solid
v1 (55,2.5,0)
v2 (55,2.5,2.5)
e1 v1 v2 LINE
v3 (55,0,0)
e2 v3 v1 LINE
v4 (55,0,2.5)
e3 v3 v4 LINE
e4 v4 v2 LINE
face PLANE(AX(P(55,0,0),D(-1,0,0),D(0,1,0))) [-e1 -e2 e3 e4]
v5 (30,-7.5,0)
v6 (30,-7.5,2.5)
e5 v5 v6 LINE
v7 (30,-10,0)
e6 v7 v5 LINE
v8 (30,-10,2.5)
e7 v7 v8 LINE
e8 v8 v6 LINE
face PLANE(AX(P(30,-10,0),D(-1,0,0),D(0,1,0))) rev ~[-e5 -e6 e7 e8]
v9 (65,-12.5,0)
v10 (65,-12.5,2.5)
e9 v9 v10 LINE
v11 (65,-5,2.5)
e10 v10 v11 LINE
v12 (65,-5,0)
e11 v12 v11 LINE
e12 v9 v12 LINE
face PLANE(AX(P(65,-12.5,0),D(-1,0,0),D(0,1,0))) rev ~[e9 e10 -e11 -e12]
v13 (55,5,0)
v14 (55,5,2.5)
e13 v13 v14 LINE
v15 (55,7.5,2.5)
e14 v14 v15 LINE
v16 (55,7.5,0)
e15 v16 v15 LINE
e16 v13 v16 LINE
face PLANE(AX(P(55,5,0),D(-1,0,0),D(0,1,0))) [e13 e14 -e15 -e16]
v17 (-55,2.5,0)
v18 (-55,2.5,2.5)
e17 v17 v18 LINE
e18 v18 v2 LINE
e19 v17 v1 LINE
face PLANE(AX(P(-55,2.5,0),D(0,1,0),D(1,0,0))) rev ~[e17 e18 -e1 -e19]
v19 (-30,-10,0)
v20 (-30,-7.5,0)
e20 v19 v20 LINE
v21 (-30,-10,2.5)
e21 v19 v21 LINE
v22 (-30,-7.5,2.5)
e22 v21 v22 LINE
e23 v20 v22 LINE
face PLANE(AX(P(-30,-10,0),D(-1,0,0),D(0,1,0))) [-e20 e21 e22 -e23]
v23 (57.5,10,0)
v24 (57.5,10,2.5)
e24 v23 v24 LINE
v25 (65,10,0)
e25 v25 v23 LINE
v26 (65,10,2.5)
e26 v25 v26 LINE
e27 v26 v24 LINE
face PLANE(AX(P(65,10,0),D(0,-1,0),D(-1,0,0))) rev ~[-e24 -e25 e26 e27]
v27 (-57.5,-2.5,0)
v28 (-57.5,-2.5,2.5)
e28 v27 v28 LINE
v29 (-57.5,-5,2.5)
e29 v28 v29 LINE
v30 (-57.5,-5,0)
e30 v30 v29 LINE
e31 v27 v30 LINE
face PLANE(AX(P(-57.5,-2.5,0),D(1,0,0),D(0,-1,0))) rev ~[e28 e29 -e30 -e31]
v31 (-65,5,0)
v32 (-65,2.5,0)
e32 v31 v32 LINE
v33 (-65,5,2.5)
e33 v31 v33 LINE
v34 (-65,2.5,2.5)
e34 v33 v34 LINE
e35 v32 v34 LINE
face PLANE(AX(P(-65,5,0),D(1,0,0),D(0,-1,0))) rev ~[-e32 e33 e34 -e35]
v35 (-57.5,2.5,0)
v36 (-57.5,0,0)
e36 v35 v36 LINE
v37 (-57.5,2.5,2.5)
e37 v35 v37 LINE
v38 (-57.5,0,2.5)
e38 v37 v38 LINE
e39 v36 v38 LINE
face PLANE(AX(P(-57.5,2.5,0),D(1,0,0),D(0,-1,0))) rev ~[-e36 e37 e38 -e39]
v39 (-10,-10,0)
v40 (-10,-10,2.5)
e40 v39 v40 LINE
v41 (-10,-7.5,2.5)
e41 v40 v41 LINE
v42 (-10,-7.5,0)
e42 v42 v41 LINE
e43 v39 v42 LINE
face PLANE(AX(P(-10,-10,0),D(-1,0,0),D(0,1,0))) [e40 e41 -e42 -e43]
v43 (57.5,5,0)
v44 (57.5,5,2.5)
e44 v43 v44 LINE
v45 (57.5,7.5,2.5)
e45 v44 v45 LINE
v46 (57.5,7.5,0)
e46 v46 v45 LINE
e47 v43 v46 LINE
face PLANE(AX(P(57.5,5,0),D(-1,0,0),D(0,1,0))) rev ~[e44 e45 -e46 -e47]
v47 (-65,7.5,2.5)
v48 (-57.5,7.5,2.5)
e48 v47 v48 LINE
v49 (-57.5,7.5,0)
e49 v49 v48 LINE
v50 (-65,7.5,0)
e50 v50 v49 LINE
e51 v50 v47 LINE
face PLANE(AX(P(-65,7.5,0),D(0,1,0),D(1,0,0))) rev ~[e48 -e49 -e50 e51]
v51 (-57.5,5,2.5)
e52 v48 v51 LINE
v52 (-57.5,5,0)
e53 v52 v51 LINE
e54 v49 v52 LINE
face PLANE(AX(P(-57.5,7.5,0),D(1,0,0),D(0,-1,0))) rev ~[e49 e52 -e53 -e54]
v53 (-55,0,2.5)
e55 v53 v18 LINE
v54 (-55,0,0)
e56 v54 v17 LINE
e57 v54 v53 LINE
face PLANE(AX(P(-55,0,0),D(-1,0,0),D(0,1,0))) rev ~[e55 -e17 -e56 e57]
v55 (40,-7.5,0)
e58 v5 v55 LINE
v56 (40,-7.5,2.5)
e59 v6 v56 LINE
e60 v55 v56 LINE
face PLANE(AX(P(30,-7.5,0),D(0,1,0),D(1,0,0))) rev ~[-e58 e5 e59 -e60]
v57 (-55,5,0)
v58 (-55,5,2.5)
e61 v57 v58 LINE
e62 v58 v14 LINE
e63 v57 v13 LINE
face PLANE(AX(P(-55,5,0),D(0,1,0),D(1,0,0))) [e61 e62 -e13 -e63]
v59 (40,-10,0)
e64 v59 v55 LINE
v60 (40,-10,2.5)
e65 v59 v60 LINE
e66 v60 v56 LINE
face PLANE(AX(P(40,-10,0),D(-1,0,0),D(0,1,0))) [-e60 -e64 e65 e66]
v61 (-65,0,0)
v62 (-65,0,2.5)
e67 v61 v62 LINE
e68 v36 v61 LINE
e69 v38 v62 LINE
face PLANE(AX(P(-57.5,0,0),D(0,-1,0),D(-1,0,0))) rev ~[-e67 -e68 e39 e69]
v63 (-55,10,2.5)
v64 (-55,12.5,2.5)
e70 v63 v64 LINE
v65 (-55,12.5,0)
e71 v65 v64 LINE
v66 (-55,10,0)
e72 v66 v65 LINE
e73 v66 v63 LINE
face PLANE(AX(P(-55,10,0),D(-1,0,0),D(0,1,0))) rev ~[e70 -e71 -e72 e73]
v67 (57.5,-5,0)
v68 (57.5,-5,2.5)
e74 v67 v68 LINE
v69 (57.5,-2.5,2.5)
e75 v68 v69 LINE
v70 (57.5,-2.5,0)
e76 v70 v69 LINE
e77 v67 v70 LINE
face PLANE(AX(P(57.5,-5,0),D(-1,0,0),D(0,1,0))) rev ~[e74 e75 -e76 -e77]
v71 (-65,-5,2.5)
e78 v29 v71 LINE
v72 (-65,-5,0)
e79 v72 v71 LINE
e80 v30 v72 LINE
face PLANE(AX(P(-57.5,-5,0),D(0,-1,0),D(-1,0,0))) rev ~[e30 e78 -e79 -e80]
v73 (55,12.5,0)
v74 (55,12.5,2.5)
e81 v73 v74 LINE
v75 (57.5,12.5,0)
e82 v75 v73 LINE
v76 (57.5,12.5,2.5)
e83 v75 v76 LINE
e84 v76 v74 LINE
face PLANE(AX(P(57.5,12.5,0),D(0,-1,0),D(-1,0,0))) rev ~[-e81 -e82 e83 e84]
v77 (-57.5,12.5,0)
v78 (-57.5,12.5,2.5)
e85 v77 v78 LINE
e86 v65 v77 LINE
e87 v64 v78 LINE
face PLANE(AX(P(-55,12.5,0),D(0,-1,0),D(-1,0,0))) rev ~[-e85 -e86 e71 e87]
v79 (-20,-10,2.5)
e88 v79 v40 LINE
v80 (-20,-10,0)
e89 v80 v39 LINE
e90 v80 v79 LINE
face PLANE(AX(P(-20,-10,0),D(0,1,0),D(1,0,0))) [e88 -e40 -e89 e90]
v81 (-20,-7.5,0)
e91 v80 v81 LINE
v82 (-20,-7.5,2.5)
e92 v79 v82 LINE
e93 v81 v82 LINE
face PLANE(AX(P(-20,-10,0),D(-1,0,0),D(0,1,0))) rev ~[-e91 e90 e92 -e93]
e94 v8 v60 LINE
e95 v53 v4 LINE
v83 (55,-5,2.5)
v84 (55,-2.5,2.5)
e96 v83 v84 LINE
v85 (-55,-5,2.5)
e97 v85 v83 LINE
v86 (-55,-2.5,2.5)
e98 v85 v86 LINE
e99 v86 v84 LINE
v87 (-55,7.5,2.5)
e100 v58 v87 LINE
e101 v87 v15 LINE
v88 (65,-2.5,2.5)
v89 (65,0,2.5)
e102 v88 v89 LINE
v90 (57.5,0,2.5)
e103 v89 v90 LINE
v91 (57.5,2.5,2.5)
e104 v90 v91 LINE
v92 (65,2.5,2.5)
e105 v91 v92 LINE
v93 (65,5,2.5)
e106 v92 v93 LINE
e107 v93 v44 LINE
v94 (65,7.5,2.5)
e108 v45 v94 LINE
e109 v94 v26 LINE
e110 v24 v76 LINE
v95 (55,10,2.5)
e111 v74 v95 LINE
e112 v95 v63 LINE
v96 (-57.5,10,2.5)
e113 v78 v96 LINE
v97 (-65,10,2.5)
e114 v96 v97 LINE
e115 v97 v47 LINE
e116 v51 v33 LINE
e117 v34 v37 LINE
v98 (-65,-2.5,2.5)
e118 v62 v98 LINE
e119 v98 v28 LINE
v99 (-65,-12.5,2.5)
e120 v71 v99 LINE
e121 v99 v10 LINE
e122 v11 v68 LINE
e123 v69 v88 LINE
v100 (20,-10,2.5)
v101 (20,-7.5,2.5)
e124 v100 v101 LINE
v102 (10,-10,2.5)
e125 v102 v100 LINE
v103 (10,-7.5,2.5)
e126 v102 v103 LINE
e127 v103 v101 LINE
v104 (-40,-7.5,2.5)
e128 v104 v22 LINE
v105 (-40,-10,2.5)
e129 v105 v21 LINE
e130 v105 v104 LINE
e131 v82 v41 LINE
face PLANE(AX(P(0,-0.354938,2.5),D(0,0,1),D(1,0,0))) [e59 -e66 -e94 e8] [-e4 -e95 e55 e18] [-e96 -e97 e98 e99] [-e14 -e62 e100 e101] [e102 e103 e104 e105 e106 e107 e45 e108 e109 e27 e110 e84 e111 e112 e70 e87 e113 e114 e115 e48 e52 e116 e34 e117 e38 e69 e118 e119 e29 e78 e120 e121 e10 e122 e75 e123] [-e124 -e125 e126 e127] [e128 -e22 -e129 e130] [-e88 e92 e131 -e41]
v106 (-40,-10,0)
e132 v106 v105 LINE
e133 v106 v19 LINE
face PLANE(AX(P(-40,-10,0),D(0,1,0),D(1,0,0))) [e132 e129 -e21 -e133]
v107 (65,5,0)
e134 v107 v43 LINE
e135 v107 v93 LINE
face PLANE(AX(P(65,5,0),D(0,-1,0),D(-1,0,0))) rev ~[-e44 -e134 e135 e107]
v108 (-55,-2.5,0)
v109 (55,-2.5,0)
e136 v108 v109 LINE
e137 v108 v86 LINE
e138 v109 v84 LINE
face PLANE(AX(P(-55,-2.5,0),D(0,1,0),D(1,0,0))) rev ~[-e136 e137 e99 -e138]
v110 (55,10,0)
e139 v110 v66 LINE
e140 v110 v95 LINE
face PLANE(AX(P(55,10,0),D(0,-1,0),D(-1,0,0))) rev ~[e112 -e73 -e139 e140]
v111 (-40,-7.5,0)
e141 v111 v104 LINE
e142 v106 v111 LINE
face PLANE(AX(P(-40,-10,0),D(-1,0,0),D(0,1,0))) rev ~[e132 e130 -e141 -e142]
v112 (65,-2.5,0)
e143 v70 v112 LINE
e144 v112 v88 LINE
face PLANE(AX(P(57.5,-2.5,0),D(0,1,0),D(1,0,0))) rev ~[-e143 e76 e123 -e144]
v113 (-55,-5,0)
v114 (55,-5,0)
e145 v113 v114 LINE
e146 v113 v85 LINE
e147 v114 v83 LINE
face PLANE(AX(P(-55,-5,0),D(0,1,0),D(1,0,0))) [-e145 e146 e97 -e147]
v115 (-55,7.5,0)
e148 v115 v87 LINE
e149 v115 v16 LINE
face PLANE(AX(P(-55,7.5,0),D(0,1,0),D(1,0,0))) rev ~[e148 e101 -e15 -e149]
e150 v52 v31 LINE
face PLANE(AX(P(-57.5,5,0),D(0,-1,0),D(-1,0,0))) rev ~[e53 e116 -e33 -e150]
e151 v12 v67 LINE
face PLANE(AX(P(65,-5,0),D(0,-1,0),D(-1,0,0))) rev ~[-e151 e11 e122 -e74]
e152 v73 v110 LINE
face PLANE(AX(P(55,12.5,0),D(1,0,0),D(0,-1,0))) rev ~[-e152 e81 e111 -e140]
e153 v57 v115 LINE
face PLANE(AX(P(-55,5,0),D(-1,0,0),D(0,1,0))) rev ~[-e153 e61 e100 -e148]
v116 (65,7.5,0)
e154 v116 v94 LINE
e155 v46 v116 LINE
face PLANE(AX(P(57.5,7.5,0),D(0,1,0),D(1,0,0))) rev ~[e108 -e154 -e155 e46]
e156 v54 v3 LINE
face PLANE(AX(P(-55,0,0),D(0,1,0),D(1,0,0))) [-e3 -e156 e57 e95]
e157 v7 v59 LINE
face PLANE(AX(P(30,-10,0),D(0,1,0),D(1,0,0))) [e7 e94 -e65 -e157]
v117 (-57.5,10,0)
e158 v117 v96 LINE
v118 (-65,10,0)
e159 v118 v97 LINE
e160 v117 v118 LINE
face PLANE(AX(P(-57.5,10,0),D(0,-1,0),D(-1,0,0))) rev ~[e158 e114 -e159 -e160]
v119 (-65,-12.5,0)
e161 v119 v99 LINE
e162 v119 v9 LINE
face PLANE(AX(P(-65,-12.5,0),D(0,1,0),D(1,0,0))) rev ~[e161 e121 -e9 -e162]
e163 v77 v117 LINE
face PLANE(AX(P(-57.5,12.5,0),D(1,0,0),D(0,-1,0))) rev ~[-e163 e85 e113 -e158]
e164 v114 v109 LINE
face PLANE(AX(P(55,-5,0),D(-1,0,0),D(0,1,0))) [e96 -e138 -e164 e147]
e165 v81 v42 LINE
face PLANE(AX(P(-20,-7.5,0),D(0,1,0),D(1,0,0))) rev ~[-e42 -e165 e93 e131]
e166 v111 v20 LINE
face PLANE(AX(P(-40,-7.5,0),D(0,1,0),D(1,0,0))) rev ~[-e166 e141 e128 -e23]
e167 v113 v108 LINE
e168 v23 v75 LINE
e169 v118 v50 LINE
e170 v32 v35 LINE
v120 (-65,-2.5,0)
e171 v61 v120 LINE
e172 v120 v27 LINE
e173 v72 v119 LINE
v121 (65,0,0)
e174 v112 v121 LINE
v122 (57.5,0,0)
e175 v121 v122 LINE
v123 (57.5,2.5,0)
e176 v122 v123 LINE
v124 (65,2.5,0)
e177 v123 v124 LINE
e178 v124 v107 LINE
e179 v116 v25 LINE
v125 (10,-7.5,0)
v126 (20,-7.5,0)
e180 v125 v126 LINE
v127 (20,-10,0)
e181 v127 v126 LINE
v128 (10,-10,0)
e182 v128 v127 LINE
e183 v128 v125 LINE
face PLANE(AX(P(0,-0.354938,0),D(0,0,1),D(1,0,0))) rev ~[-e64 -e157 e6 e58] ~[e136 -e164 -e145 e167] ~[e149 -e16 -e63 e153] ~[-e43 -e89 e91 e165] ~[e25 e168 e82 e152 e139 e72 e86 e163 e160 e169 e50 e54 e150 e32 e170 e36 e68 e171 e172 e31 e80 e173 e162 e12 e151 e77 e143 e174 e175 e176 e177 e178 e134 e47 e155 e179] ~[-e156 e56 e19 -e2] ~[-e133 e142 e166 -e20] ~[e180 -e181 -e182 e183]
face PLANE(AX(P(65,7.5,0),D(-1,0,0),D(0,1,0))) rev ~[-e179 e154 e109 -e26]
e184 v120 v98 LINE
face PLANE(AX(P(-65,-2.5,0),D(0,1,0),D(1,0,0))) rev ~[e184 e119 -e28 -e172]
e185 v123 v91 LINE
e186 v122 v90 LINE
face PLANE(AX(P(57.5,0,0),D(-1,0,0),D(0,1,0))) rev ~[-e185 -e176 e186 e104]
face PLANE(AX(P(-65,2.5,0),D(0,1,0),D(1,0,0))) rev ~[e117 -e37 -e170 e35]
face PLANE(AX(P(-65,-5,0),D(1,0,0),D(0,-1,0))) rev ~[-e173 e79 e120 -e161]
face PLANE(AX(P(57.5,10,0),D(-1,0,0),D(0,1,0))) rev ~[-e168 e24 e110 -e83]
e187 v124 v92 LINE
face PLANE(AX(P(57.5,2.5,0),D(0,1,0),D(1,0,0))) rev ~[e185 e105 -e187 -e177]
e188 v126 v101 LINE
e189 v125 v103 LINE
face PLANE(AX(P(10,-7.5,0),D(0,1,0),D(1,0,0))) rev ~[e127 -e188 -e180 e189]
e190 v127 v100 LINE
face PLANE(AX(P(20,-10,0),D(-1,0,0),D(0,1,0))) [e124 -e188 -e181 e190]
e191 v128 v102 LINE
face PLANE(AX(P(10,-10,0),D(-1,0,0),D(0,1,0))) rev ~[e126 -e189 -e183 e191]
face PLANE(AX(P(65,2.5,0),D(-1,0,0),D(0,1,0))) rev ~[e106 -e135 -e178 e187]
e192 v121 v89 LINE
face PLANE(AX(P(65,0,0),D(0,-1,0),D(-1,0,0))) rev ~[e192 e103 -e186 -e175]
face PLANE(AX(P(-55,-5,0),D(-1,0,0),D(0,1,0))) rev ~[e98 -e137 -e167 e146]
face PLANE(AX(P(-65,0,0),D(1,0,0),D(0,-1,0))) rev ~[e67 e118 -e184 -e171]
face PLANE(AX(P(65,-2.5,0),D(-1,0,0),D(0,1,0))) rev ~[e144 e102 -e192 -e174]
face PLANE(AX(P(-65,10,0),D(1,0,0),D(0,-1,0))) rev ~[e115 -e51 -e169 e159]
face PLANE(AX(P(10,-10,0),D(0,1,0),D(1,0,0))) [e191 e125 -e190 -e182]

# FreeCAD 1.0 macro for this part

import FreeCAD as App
import Part
import Sketcher
from FreeCAD import Vector
Q = App.Units.Quantity


def add_polygon(sketch, points):
    """Adds a closed chain of lines whose ends are joined by coincident constraints."""
    first, n = sketch.GeometryCount, len(points)
    for a, b in zip(points, points[1:] + points[:1]):
        sketch.addGeometry(Part.LineSegment(App.Vector(*a, 0), App.Vector(*b, 0)), False)
    for i in range(n):
        sketch.addConstraint(Sketcher.Constraint("Coincident", first + i, 2, first + (i + 1) % n, 1))

doc = App.newDocument("Part")
body = doc.addObject("PartDesign::Body", "Body")

# Sketch on XY plane
sketch1 = doc.addObject("Sketcher::SketchObject", "Sketch")
body.addObject(sketch1)
sketch1.AttachmentSupport = (doc.XY_Plane, [""])
sketch1.MapMode = "FlatFace"
add_polygon(sketch1, [(-65, -12.5), (65, -12.5), (65, -5), (57.5, -5), (57.5, -2.5), (65, -2.5), (65, 0), (57.5, 0), (57.5, 2.5), (65, 2.5), (65, 5), (57.5, 5), (57.5, 7.5), (65, 7.5), (65, 10), (57.5, 10), (57.5, 12.5), (55, 12.5), (55, 10), (-55, 10), (-55, 12.5), (-57.5, 12.5), (-57.5, 10), (-65, 10), (-65, 7.5), (-57.5, 7.5), (-57.5, 5), (-65, 5), (-65, 2.5), (-57.5, 2.5), (-57.5, 0), (-65, 0), (-65, -2.5), (-57.5, -2.5), (-57.5, -5), (-65, -5)])  # lines 0-35
add_polygon(sketch1, [(-30, -10), (-40, -10), (-40, -7.5), (-30, -7.5)])  # lines 36-39
add_polygon(sketch1, [(-10, -10), (-20, -10), (-20, -7.5), (-10, -7.5)])  # lines 40-43
add_polygon(sketch1, [(20, -10), (10, -10), (10, -7.5), (20, -7.5)])  # lines 44-47
add_polygon(sketch1, [(40, -10), (30, -10), (30, -7.5), (40, -7.5)])  # lines 48-51
add_polygon(sketch1, [(55, -5), (-55, -5), (-55, -2.5), (55, -2.5)])  # lines 52-55
add_polygon(sketch1, [(55, 0), (-55, 0), (-55, 2.5), (55, 2.5)])  # lines 56-59
add_polygon(sketch1, [(55, 5), (-55, 5), (-55, 7.5), (55, 7.5)])  # lines 60-63
sketch1.addConstraint([
    Sketcher.Constraint("Horizontal", 0),
    Sketcher.Constraint("Vertical", 1),
    Sketcher.Constraint("Horizontal", 2),
    Sketcher.Constraint("Vertical", 3),
    Sketcher.Constraint("Horizontal", 4),
    Sketcher.Constraint("Vertical", 5),
    Sketcher.Constraint("Horizontal", 6),
    Sketcher.Constraint("Vertical", 7),
    Sketcher.Constraint("Horizontal", 8),
    Sketcher.Constraint("Vertical", 9),
    Sketcher.Constraint("Horizontal", 10),
    Sketcher.Constraint("Vertical", 11),
    Sketcher.Constraint("Horizontal", 12),
    Sketcher.Constraint("Vertical", 13),
    Sketcher.Constraint("Horizontal", 14),
    Sketcher.Constraint("Vertical", 15),
    Sketcher.Constraint("Horizontal", 16),
    Sketcher.Constraint("Vertical", 17),
    Sketcher.Constraint("Horizontal", 18),
    Sketcher.Constraint("Vertical", 19),
    Sketcher.Constraint("Horizontal", 20),
    Sketcher.Constraint("Vertical", 21),
    Sketcher.Constraint("Horizontal", 22),
    Sketcher.Constraint("Vertical", 23),
    Sketcher.Constraint("Horizontal", 24),
    Sketcher.Constraint("Vertical", 25),
    Sketcher.Constraint("Horizontal", 26),
    Sketcher.Constraint("Vertical", 27),
    Sketcher.Constraint("Horizontal", 28),
    Sketcher.Constraint("Vertical", 29),
    Sketcher.Constraint("Horizontal", 30),
    Sketcher.Constraint("Vertical", 31),
    Sketcher.Constraint("Horizontal", 32),
    Sketcher.Constraint("Vertical", 33),
    Sketcher.Constraint("Horizontal", 34),
    Sketcher.Constraint("Vertical", 35),
    Sketcher.Constraint("Horizontal", 36),
    Sketcher.Constraint("Vertical", 37),
    Sketcher.Constraint("Horizontal", 38),
    Sketcher.Constraint("Vertical", 39),
    Sketcher.Constraint("Horizontal", 40),
    Sketcher.Constraint("Vertical", 41),
    Sketcher.Constraint("Horizontal", 42),
    Sketcher.Constraint("Vertical", 43),
    Sketcher.Constraint("Horizontal", 44),
    Sketcher.Constraint("Vertical", 45),
    Sketcher.Constraint("Horizontal", 46),
    Sketcher.Constraint("Vertical", 47),
    Sketcher.Constraint("Horizontal", 48),
    Sketcher.Constraint("Vertical", 49),
    Sketcher.Constraint("Horizontal", 50),
    Sketcher.Constraint("Vertical", 51),
    Sketcher.Constraint("Horizontal", 52),
    Sketcher.Constraint("Vertical", 53),
    Sketcher.Constraint("Horizontal", 54),
    Sketcher.Constraint("Vertical", 55),
    Sketcher.Constraint("Horizontal", 56),
    Sketcher.Constraint("Vertical", 57),
    Sketcher.Constraint("Horizontal", 58),
    Sketcher.Constraint("Vertical", 59),
    Sketcher.Constraint("Horizontal", 60),
    Sketcher.Constraint("Vertical", 61),
    Sketcher.Constraint("Horizontal", 62),
    Sketcher.Constraint("Vertical", 63),
    Sketcher.Constraint("Symmetric", 2, 2, 25, 2, -1, 1),
    Sketcher.Constraint("Symmetric", 4, 2, 27, 2, -1, 1),
    Sketcher.Constraint("Symmetric", 6, 2, 29, 2, -1, 1),
    Sketcher.Constraint("Symmetric", 8, 2, 31, 2, -1, 1),
    Sketcher.Constraint("Symmetric", 10, 2, 33, 2, -1, 1),
    Sketcher.Constraint("Symmetric", 54, 2, 57, 2, -1, 1),
    Sketcher.Constraint("Symmetric", 56, 2, 59, 2, -1, 1),
    Sketcher.Constraint("Symmetric", 55, 2, 60, 2, -1, 1),
    Sketcher.Constraint("Symmetric", 16, 2, 19, 2, -2),
    Sketcher.Constraint("Symmetric", 14, 2, 21, 2, -2),
    Sketcher.Constraint("Symmetric", 12, 2, 23, 2, -2),
    Sketcher.Constraint("Symmetric", 10, 2, 25, 2, -2),
    Sketcher.Constraint("Symmetric", 8, 2, 27, 2, -2),
    Sketcher.Constraint("Symmetric", 43, 2, 44, 2, -2),
    Sketcher.Constraint("Symmetric", 41, 2, 46, 2, -2),
    Sketcher.Constraint("Symmetric", 39, 2, 48, 2, -2),
    Sketcher.Constraint("Symmetric", 37, 2, 50, 2, -2),
    Sketcher.Constraint("PointOnObject", 5, 2, -1),
    Sketcher.Constraint("Horizontal", 14, 2, 17, 2),
    Sketcher.Constraint("Horizontal", 39, 2, 40, 2),
    Sketcher.Constraint("Horizontal", 38, 2, 41, 2),
    Sketcher.Constraint("Horizontal", 34, 2, 52, 2),
    Sketcher.Constraint("Horizontal", 32, 2, 53, 2),
    Sketcher.Constraint("Horizontal", 24, 2, 61, 2),
    Sketcher.Constraint("Vertical", 1, 2, 4, 2),
    Sketcher.Constraint("Vertical", 3, 2, 6, 2),
    Sketcher.Constraint("Vertical", 9, 2, 12, 2),
    Sketcher.Constraint("Vertical", 11, 2, 14, 2),
    Sketcher.Constraint("Vertical", 31, 2, 34, 2),
    Sketcher.Constraint("Vertical", 19, 2, 52, 2),
    Sketcher.Constraint("Vertical", 17, 2, 54, 2),
    Sketcher.Constraint("Vertical", 59, 2, 62, 2),
    Sketcher.Constraint("Equal", 38, 40),
    Sketcher.Constraint("Equal", 34, 1),
    Sketcher.Constraint("Equal", 20, 3),
    Sketcher.Constraint("Equal", 3, 5),
    Sketcher.Constraint("Equal", 9, 11),
    Sketcher.Constraint("Equal", 11, 13),
    Sketcher.Constraint("Equal", 13, 15),
    Sketcher.Constraint("Equal", 33, 37),
    Sketcher.Constraint("DistanceX", 0, 1, 0, 2, Q("130 mm")),
    Sketcher.Constraint("DistanceX", 18, 2, 18, 1, Q("110 mm")),
    Sketcher.Constraint("DistanceX", 36, 2, 36, 1, Q("10 mm")),
    Sketcher.Constraint("DistanceX", 2, 2, 2, 1, Q("7.5 mm")),
    Sketcher.Constraint("DistanceX", 36, 2, -1, 1, Q("40 mm")),
    Sketcher.Constraint("DistanceY", 36, 2, -1, 1, Q("10 mm")),
    Sketcher.Constraint("DistanceX", 40, 2, -1, 1, Q("20 mm")),
])
pad1 = doc.addObject("PartDesign::Pad", "Pad")
body.addObject(pad1)
pad1.Profile = sketch1
pad1.Length = 2.5

doc.recompute()
